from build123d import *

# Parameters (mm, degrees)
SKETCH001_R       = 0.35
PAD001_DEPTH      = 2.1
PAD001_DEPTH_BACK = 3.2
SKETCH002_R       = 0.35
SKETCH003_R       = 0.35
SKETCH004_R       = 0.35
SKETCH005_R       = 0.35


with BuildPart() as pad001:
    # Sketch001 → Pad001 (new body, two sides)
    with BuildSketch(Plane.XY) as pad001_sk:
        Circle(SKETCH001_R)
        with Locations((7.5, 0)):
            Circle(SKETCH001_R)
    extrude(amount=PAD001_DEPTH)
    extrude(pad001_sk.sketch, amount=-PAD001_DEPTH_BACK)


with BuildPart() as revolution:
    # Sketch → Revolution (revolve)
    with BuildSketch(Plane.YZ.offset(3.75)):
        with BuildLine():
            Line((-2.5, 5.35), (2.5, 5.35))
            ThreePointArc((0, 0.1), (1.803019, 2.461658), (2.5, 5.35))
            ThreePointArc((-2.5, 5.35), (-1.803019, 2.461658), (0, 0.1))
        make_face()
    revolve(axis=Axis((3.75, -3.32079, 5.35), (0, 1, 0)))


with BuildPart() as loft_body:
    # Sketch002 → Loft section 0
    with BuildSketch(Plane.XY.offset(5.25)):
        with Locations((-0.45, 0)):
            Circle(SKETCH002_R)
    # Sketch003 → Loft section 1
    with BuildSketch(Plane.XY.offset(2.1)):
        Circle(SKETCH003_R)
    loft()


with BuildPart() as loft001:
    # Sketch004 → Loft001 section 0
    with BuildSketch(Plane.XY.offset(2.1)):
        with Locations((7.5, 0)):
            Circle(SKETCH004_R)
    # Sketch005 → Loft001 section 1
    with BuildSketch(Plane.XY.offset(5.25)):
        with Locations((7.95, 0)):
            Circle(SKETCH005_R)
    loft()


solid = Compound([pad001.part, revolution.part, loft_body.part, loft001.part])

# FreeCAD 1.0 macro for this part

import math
import FreeCAD as App
import Part
import Sketcher
Q = App.Units.Quantity

doc = App.newDocument("Part")
body = doc.addObject("PartDesign::Body", "Body")
body.AllowCompound = True

sketch1 = body.newObject("Sketcher::SketchObject", "Sketch")
sketch1.AttachmentSupport = (doc.getObject("XY_Plane"), [""])
sketch1.MapMode = "FlatFace"
sketch1.addGeometry([
    Part.Circle(App.Vector(0, 0, 0), App.Vector(0, 0, 1), 0.35),
    Part.Circle(App.Vector(7.5, 0, 0), App.Vector(0, 0, 1), 0.35),
], False)
sketch1.addConstraint([
    Sketcher.Constraint("Coincident", 0, 3, -1, 1),
    Sketcher.Constraint("Equal", 0, 1),
    Sketcher.Constraint("PointOnObject", 1, 3, -1),
    Sketcher.Constraint("Diameter", 0, Q("0.7 mm")),
    Sketcher.Constraint("DistanceX", -1, 1, 1, 3, Q("7.5 mm")),
])
pad1 = body.newObject("PartDesign::Pad", "Pad")
pad1.Profile = sketch1
pad1.Type = "TwoLengths"
pad1.Length = 2.1
pad1.Length2 = 3.2
body2 = doc.addObject("PartDesign::Body", "Body001")

sketch2 = body2.newObject("Sketcher::SketchObject", "Sketch001")
sketch2.AttachmentSupport = (doc.getObject("YZ_Plane001"), [""])
sketch2.MapMode = "FlatFace"
sketch2.AttachmentOffset = App.Placement(App.Vector(0, 0, 3.75), App.Rotation())
sketch2.addGeometry([
    Part.LineSegment(App.Vector(2.5, 5.35, 0), App.Vector(-2.5, 5.35, 0)),
    Part.ArcOfCircle(Part.Circle(App.Vector(4.7035, 5.56, 0), App.Vector(0, 0, 1), 7.20656), math.radians(-178.330159), math.radians(-130.743151)),
    Part.ArcOfCircle(Part.Circle(App.Vector(-4.7035, 5.56, 0), App.Vector(0, 0, 1), 7.20656), math.radians(-49.256849), math.radians(-1.669841)),
], False)
sketch2.addGeometry(Part.LineSegment(App.Vector(-4.7035, 5.35, 0), App.Vector(4.7035, 5.35, 0)), True)
sketch2.addConstraint([
    Sketcher.Constraint("Coincident", 0, 2, 1, 1),
    Sketcher.Constraint("Coincident", 1, 2, 2, 1),
    Sketcher.Constraint("Coincident", 2, 2, 0, 1),
    Sketcher.Constraint("Horizontal", 0),
    Sketcher.Constraint("Horizontal", 3),
    Sketcher.Constraint("Equal", 1, 2),
    Sketcher.Constraint("Symmetric", 1, 3, 2, 3, -2),
    Sketcher.Constraint("Horizontal", 2, 2, 3, 1),
    Sketcher.Constraint("Vertical", 2, 3, 3, 1),
    Sketcher.Constraint("Vertical", 1, 3, 3, 2),
    Sketcher.Constraint("DistanceX", 0, 2, 0, 1, Q("5 mm")),
    Sketcher.Constraint("DistanceY", -1, 1, 1, 2, Q("0.1 mm")),
    Sketcher.Constraint("DistanceX", 3, 1, 3, 2, Q("9.406999 mm")),
    Sketcher.Constraint("DistanceY", -1, 1, 1, 3, Q("5.56 mm")),
])
revolution = body2.newObject("PartDesign::Revolution", "Revolution")
revolution.Profile = sketch2
revolution.ReferenceAxis = (sketch2, ["Axis0"])
revolution.Angle = 360
body3 = doc.addObject("PartDesign::Body", "Body002")

sketch3 = body3.newObject("Sketcher::SketchObject", "Sketch002")
sketch3.AttachmentSupport = (doc.getObject("XY_Plane002"), [""])
sketch3.MapMode = "FlatFace"
sketch3.AttachmentOffset = App.Placement(App.Vector(0, 0, 5.25), App.Rotation())
sketch3.addGeometry(Part.Circle(App.Vector(-0.45, 0, 0), App.Vector(0, 0, 1), 0.35), False)
sketch3.addConstraint([
    Sketcher.Constraint("PointOnObject", 0, 3, -1),
    Sketcher.Constraint("Diameter", 0, Q("0.7 mm")),
    Sketcher.Constraint("DistanceX", 0, 3, -1, 1, Q("0.45 mm")),
])

sketch4 = body3.newObject("Sketcher::SketchObject", "Sketch003")
sketch4.AttachmentSupport = (doc.getObject("XY_Plane002"), [""])
sketch4.MapMode = "FlatFace"
sketch4.AttachmentOffset = App.Placement(App.Vector(0, 0, 2.1), App.Rotation())
sketch4.addGeometry(Part.Circle(App.Vector(0, 0, 0), App.Vector(0, 0, 1), 0.35), False)
sketch4.addConstraint([
    Sketcher.Constraint("Coincident", 0, 3, -1, 1),
    Sketcher.Constraint("Diameter", 0, Q("0.7 mm")),
])

additiveloft = body3.newObject("PartDesign::AdditiveLoft", "AdditiveLoft")
additiveloft.Profile = sketch3
additiveloft.Sections = [sketch4]
body4 = doc.addObject("PartDesign::Body", "Body003")

sketch5 = body4.newObject("Sketcher::SketchObject", "Sketch004")
sketch5.AttachmentSupport = (doc.getObject("XY_Plane003"), [""])
sketch5.MapMode = "FlatFace"
sketch5.AttachmentOffset = App.Placement(App.Vector(0, 0, 2.1), App.Rotation())
sketch5.addGeometry(Part.Circle(App.Vector(7.5, 0, 0), App.Vector(0, 0, 1), 0.35), False)
sketch5.addConstraint([
    Sketcher.Constraint("PointOnObject", 0, 3, -1),
    Sketcher.Constraint("Diameter", 0, Q("0.7 mm")),
    Sketcher.Constraint("DistanceX", -1, 1, 0, 3, Q("7.5 mm")),
])

sketch6 = body4.newObject("Sketcher::SketchObject", "Sketch005")
sketch6.AttachmentSupport = (doc.getObject("XY_Plane003"), [""])
sketch6.MapMode = "FlatFace"
sketch6.AttachmentOffset = App.Placement(App.Vector(0, 0, 5.25), App.Rotation())
sketch6.addGeometry(Part.Circle(App.Vector(7.95, 0, 0), App.Vector(0, 0, 1), 0.35), False)
sketch6.addConstraint([
    Sketcher.Constraint("PointOnObject", 0, 3, -1),
    Sketcher.Constraint("Diameter", 0, Q("0.7 mm")),
    Sketcher.Constraint("DistanceX", -1, 1, 0, 3, Q("7.95 mm")),
])

additiveloft2 = body4.newObject("PartDesign::AdditiveLoft", "AdditiveLoft001")
additiveloft2.Profile = sketch5
additiveloft2.Sections = [sketch6]

doc.recompute()
